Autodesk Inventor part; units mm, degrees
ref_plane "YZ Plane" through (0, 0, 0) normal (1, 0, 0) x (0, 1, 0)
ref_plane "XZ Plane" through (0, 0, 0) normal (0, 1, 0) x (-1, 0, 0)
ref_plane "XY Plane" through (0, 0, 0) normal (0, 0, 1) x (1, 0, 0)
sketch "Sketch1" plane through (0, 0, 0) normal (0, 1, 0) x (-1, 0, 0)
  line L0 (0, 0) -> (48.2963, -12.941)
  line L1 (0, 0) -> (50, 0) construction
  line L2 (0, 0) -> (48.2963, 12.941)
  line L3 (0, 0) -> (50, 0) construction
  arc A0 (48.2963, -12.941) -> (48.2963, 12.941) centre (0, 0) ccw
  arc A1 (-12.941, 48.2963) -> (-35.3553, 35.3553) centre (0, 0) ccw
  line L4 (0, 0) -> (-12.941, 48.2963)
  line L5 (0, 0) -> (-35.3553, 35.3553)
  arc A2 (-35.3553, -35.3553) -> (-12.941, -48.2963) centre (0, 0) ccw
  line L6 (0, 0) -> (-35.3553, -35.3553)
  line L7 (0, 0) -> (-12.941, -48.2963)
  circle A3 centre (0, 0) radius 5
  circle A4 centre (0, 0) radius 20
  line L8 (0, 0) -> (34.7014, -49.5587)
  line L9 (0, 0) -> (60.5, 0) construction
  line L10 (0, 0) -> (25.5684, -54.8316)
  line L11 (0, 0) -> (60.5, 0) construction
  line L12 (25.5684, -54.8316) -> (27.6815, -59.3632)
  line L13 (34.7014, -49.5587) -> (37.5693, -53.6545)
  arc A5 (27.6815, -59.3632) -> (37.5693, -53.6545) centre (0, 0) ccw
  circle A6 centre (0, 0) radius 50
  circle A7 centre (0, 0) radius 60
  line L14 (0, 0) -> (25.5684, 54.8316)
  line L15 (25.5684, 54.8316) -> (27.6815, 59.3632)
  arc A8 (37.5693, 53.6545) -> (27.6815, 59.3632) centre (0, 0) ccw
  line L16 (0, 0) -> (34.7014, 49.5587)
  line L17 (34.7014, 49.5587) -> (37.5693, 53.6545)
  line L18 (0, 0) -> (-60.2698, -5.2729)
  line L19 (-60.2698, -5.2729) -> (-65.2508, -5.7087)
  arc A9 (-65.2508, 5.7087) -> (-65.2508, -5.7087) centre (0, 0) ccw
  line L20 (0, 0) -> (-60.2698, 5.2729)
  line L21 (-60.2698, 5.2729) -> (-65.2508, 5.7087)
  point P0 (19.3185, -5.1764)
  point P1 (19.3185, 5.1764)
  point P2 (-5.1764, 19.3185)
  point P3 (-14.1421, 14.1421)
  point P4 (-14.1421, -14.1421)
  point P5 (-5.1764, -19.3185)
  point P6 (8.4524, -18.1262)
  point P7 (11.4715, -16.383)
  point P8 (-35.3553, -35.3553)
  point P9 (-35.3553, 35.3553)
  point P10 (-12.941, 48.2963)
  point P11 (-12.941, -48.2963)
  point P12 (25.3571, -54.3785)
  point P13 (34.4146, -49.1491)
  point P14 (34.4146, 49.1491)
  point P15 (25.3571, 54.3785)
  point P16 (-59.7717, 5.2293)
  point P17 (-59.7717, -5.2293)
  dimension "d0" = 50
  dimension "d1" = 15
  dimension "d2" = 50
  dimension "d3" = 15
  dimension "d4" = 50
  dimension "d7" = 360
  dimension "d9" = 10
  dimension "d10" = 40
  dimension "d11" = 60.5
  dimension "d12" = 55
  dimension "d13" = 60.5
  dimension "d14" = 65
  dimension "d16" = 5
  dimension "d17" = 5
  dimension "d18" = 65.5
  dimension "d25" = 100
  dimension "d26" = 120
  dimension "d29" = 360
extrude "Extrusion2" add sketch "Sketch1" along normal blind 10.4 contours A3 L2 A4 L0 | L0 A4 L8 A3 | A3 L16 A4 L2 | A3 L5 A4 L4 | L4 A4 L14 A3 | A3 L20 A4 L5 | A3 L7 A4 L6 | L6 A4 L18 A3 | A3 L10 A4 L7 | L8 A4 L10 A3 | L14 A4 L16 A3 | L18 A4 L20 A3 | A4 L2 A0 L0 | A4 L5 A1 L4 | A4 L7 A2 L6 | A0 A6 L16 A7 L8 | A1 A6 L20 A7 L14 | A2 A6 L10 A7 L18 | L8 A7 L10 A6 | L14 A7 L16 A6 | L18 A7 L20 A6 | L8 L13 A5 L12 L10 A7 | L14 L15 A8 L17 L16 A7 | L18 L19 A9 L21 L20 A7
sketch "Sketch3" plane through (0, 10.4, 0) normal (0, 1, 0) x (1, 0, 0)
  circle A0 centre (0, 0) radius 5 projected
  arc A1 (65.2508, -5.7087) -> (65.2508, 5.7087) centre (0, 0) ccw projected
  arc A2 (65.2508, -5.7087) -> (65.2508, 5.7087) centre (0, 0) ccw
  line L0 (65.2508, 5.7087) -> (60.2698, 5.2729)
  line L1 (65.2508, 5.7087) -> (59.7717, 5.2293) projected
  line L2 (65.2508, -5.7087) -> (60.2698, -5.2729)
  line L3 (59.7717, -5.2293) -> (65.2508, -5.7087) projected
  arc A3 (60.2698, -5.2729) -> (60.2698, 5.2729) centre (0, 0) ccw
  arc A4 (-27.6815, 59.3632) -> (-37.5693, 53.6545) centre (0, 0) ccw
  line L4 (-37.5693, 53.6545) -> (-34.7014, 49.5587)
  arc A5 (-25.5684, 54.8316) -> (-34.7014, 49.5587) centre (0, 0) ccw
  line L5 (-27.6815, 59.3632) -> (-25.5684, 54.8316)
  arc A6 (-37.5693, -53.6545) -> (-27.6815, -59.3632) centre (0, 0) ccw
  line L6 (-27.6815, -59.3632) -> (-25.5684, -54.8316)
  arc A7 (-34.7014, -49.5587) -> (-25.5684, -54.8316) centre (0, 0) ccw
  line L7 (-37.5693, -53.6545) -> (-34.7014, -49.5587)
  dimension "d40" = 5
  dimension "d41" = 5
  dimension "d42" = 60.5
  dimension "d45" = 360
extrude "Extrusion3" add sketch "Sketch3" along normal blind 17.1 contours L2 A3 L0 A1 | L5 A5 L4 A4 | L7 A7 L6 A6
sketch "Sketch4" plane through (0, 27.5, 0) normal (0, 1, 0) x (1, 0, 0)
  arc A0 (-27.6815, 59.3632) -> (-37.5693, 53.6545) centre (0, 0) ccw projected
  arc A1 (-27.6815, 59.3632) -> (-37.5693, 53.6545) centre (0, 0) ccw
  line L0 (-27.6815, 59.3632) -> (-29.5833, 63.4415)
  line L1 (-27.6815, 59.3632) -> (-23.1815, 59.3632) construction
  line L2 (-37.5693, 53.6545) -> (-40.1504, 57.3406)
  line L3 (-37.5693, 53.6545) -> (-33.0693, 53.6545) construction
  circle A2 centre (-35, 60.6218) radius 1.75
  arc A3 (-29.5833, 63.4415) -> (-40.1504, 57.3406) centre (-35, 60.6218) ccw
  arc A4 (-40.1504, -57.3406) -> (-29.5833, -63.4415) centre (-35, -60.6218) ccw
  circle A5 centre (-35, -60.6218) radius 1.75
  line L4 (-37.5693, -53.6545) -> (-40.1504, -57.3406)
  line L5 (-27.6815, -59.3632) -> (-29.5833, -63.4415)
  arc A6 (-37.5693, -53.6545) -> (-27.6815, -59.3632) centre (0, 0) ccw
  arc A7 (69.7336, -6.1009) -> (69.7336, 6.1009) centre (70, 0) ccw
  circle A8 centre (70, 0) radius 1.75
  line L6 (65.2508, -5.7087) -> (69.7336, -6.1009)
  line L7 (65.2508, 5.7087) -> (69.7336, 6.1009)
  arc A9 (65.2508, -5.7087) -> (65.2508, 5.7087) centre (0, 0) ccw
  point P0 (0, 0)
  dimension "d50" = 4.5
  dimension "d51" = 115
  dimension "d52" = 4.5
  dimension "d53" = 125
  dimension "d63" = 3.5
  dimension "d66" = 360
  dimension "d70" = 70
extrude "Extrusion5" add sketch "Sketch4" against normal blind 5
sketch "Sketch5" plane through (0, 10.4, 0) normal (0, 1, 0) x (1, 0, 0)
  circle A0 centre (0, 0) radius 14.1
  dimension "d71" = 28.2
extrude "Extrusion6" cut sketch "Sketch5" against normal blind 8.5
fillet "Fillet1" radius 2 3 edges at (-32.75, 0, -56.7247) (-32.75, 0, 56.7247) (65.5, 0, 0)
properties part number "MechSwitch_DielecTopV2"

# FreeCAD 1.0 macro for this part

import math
import FreeCAD as App
import Part
import Sketcher
Q = App.Units.Quantity


def edges_at(feature, points):
    """Names of the edges that pass closest to the given points."""
    edges = feature.Shape.Edges
    near = lambda p: min(range(len(edges)), key=lambda i: edges[i].distToShape(Part.Vertex(*p))[0])
    return sorted({f"Edge{near(p) + 1}" for p in points})

doc = App.newDocument("Part")
params = doc.addObject("Spreadsheet::Sheet", "Params")
for row, (alias, value) in enumerate([
    ("sketch1_diameter", "10 mm"),
    ("sketch1_radius", "60 mm"),
    ("sketch1_radius2", "20 mm"),
    ("sketch1_radius3", "50 mm"),
    ("sketch1_radius4", "65.5 mm"),
    ("pad1_length", "10.4 mm"),
    ("sketch2_radius", "60.5 mm"),
    ("sketch2_length", "5 mm"),
    ("pad2_length", "17.1 mm"),
    ("sketch3_diameter", "3.5 mm"),
    ("sketch3_length", "4.5 mm"),
    ("sketch3_radius", "65.5 mm"),
    ("pad3_length", "5 mm"),
    ("sketch4_diameter", "28.2 mm"),
    ("pocket1_length", "8.5 mm"),
    ("fillet_radius", "2 mm"),
], start=1):
    params.set(f"A{row}", alias)
    params.set(f"B{row}", "=" + value)
    params.setAlias(f"B{row}", alias)

body = doc.addObject("PartDesign::Body", "Body")

# Sketch on XZ plane
sketch1 = body.newObject("Sketcher::SketchObject", "Sketch")
sketch1.AttachmentSupport = (doc.getObject("XZ_Plane"), [""])
sketch1.MapMode = "FlatFace"
sketch1.addGeometry([
    Part.LineSegment(App.Vector(-34.414603, 49.149111, 0), App.Vector(-34.7014, 49.5587, 0)),  # 0
    Part.LineSegment(App.Vector(-34.7014, 49.5587, 0), App.Vector(-37.5693, 53.6545, 0)),  # 1
    Part.ArcOfCircle(Part.Circle(App.Vector(-0.001465, 0.0023, 0), App.Vector(0, 0, 1), 65.497334), math.radians(114.999677), math.radians(125.000115)),  # 2
    Part.LineSegment(App.Vector(-27.6815, 59.3632, 0), App.Vector(-25.5684, 54.8316, 0)),  # 3
    Part.LineSegment(App.Vector(-25.5684, 54.8316, 0), App.Vector(-25.3571, 54.378465, 0)),  # 4
    Part.ArcOfCircle(Part.Circle(App.Vector(0, 0, 0), App.Vector(0, 0, 1), 60), math.radians(4.999977), math.radians(115.000004)),  # 5
    Part.LineSegment(App.Vector(59.771684, 5.229321, 0), App.Vector(60.2698, 5.2729, 0)),  # 6
    Part.LineSegment(App.Vector(60.2698, 5.2729, 0), App.Vector(65.2508, 5.7087, 0)),  # 7
    Part.ArcOfCircle(Part.Circle(App.Vector(0, 0, 0), App.Vector(0, 0, 1), 65.500047), math.radians(-4.999995), math.radians(4.999995)),  # 8
    Part.LineSegment(App.Vector(65.2508, -5.7087, 0), App.Vector(60.2698, -5.2729, 0)),  # 9
    Part.LineSegment(App.Vector(60.2698, -5.2729, 0), App.Vector(59.771684, -5.229321, 0)),  # 10
    Part.ArcOfCircle(Part.Circle(App.Vector(0, 0, 0), App.Vector(0, 0, 1), 60), math.radians(-115.000004), math.radians(-4.999977)),  # 11
    Part.LineSegment(App.Vector(-25.3571, -54.378465, 0), App.Vector(-25.5684, -54.8316, 0)),  # 12
    Part.LineSegment(App.Vector(-25.5684, -54.8316, 0), App.Vector(-27.6815, -59.3632, 0)),  # 13
    Part.ArcOfCircle(Part.Circle(App.Vector(0.001259, 0.002419, 0), App.Vector(0, 0, 1), 65.502762), math.radians(-124.999699), math.radians(-115.000092)),  # 14
    Part.LineSegment(App.Vector(-37.5693, -53.6545, 0), App.Vector(-34.7014, -49.5587, 0)),  # 15
    Part.LineSegment(App.Vector(-34.7014, -49.5587, 0), App.Vector(-34.414603, -49.149111, 0)),  # 16
    Part.ArcOfCircle(Part.Circle(App.Vector(0, 0, 0), App.Vector(0, 0, 1), 60), math.radians(125.000019), math.radians(234.999981)),  # 17
    Part.Circle(App.Vector(0, 0, 0), App.Vector(0, 0, 1), 5),  # 18
    Part.ArcOfCircle(Part.Circle(App.Vector(0, 0, 0), App.Vector(0, 0, 1), 20), math.radians(74.99995), math.radians(164.99995)),  # 19
    Part.LineSegment(App.Vector(5.176398, 19.318512, 0), App.Vector(12.941, 48.2963, 0)),  # 20
    Part.ArcOfCircle(Part.Circle(App.Vector(0, 0, 0), App.Vector(0, 0, 1), 50), math.radians(74.99995), math.radians(164.99995)),  # 21
    Part.LineSegment(App.Vector(-48.2963, 12.941, 0), App.Vector(-19.318512, 5.176398, 0)),  # 22
    Part.LineSegment(App.Vector(-19.318512, -5.176398, 0), App.Vector(-48.2963, -12.941, 0)),  # 23
    Part.ArcOfCircle(Part.Circle(App.Vector(0, 0, 0), App.Vector(0, 0, 1), 50), math.radians(-164.99995), math.radians(-74.99995)),  # 24
    Part.LineSegment(App.Vector(12.941, -48.2963, 0), App.Vector(5.176398, -19.318512, 0)),  # 25
    Part.ArcOfCircle(Part.Circle(App.Vector(0, 0, 0), App.Vector(0, 0, 1), 20), math.radians(-164.99995), math.radians(-74.99995)),  # 26
    Part.ArcOfCircle(Part.Circle(App.Vector(0, 0, 0), App.Vector(0, 0, 1), 50), math.radians(-45), math.radians(45)),  # 27
    Part.LineSegment(App.Vector(35.3553, 35.3553, 0), App.Vector(14.142136, 14.142136, 0)),  # 28
    Part.ArcOfCircle(Part.Circle(App.Vector(0, 0, 0), App.Vector(0, 0, 1), 20), math.radians(-45), math.radians(45)),  # 29
    Part.LineSegment(App.Vector(14.142136, -14.142136, 0), App.Vector(35.3553, -35.3553, 0)),  # 30
], False)
sketch1.addConstraint([
    Sketcher.Constraint("Coincident", 0, 2, 1, 1),
    Sketcher.Constraint("Coincident", 1, 2, 2, 2),
    Sketcher.Constraint("Coincident", 2, 1, 3, 1),
    Sketcher.Constraint("Coincident", 3, 2, 4, 1),
    Sketcher.Constraint("Coincident", 4, 2, 5, 2),
    Sketcher.Constraint("Coincident", 5, 1, 6, 1),
    Sketcher.Constraint("Coincident", 6, 2, 7, 1),
    Sketcher.Constraint("Coincident", 7, 2, 8, 2),
    Sketcher.Constraint("Coincident", 8, 1, 9, 1),
    Sketcher.Constraint("Coincident", 9, 2, 10, 1),
    Sketcher.Constraint("Coincident", 10, 2, 11, 2),
    Sketcher.Constraint("Coincident", 11, 1, 12, 1),
    Sketcher.Constraint("Coincident", 12, 2, 13, 1),
    Sketcher.Constraint("Coincident", 13, 2, 14, 2),
    Sketcher.Constraint("Coincident", 14, 1, 15, 1),
    Sketcher.Constraint("Coincident", 15, 2, 16, 1),
    Sketcher.Constraint("Coincident", 16, 2, 17, 2),
    Sketcher.Constraint("Coincident", 17, 1, 0, 1),
    Sketcher.Constraint("Coincident", 19, 1, 20, 1),
    Sketcher.Constraint("Coincident", 20, 2, 21, 1),
    Sketcher.Constraint("Coincident", 21, 2, 22, 1),
    Sketcher.Constraint("Coincident", 22, 2, 19, 2),
    Sketcher.Constraint("Coincident", 23, 2, 24, 1),
    Sketcher.Constraint("Coincident", 24, 2, 25, 1),
    Sketcher.Constraint("Coincident", 25, 2, 26, 2),
    Sketcher.Constraint("Coincident", 26, 1, 23, 1),
    Sketcher.Constraint("Coincident", 27, 2, 28, 1),
    Sketcher.Constraint("Coincident", 28, 2, 29, 2),
    Sketcher.Constraint("Coincident", 29, 1, 30, 1),
    Sketcher.Constraint("Coincident", 30, 2, 27, 1),
    Sketcher.Constraint("Coincident", 5, 3, -1, 1),
    Sketcher.Constraint("Coincident", 8, 3, -1, 1),
    Sketcher.Constraint("Coincident", 11, 3, -1, 1),
    Sketcher.Constraint("Coincident", 17, 3, -1, 1),
    Sketcher.Constraint("Coincident", 18, 3, -1, 1),
    Sketcher.Constraint("Coincident", 19, 3, -1, 1),
    Sketcher.Constraint("Coincident", 21, 3, -1, 1),
    Sketcher.Constraint("Coincident", 24, 3, -1, 1),
    Sketcher.Constraint("Coincident", 26, 3, -1, 1),
    Sketcher.Constraint("Coincident", 27, 3, -1, 1),
    Sketcher.Constraint("Coincident", 29, 3, -1, 1),
    Sketcher.Constraint("Equal", 5, 11),
    Sketcher.Constraint("Equal", 11, 17),
    Sketcher.Constraint("Equal", 21, 24),
    Sketcher.Constraint("Equal", 19, 26),
    Sketcher.Constraint("Equal", 24, 27),
    Sketcher.Constraint("Equal", 26, 29),
    Sketcher.Constraint("Symmetric", 2, 3, 14, 3, -2),
    Sketcher.Constraint("Symmetric", 6, 2, 9, 2, -1),
    Sketcher.Constraint("Symmetric", 3, 2, 12, 2, -1),
    Sketcher.Constraint("Symmetric", 2, 1, 13, 2, -1),
    Sketcher.Constraint("Symmetric", 1, 2, 14, 1, -1),
    Sketcher.Constraint("Symmetric", 0, 2, 15, 2, -1),
    Sketcher.Constraint("Parallel", 0, 1),
    Sketcher.Constraint("Parallel", 3, 4),
    Sketcher.Constraint("Parallel", 6, 7),
    Sketcher.Constraint("Parallel", 9, 10),
    Sketcher.Constraint("Parallel", 12, 13),
    Sketcher.Constraint("Parallel", 15, 16),
    Sketcher.Constraint("Perpendicular", 20, 22),
    Sketcher.Constraint("Perpendicular", 23, 25),
    Sketcher.Constraint("Perpendicular", 28, 30),
    Sketcher.Constraint("Vertical", 7, 2, 8, 1),
    Sketcher.Constraint("Vertical", 21, 2, 23, 2),
    Sketcher.Constraint("Vertical", 20, 2, 24, 2),
    Sketcher.Constraint("Vertical", 19, 1, 25, 2),
    Sketcher.Constraint("Vertical", 28, 2, 29, 1),
    Sketcher.Constraint("Vertical", 27, 2, 30, 2),
    Sketcher.Constraint("Equal", 1, 3),
    Sketcher.Constraint("Equal", 4, 6),
    Sketcher.Constraint("Equal", 3, 7),
    Sketcher.Constraint("Diameter", 18, Q("10 mm")),
    Sketcher.Constraint("Radius", 5, Q("60 mm")),
    Sketcher.Constraint("Radius", 19, Q("20 mm")),
    Sketcher.Constraint("Radius", 21, Q("50 mm")),
    Sketcher.Constraint("Radius", 8, Q("65.5 mm")),
    Sketcher.Constraint("Angle", 3, Q("-65.0002 deg")),
    Sketcher.Constraint("Angle", 6, Q("5 deg")),
    Sketcher.Constraint("Angle", 15, Q("55 deg")),
    Sketcher.Constraint("Angle", 22, Q("-15 deg")),
    Sketcher.Constraint("Distance", 1, Q("5 mm")),
    Sketcher.Constraint("Radius", 2, Q("65.4973 mm")),
    Sketcher.Constraint("DistanceX", 0, 2, 2, 3, Q("34.7 mm")),
    Sketcher.Constraint("DistanceX", 0, 2, 2, 1, Q("7.02 mm")),
    Sketcher.Constraint("DistanceY", -1, 1, 6, 2, Q("5.273 mm")),
    Sketcher.Constraint("DistanceX", -1, 1, 20, 2, Q("12.941 mm")),
    Sketcher.Constraint("DistanceY", -1, 1, 21, 2, Q("12.941 mm")),
    Sketcher.Constraint("DistanceY", 27, 2, 20, 2, Q("12.941 mm")),
])
sketch1.setExpression("Constraints[71]", "Params.sketch1_diameter")
sketch1.setExpression("Constraints[72]", "Params.sketch1_radius")
sketch1.setExpression("Constraints[73]", "Params.sketch1_radius2")
sketch1.setExpression("Constraints[74]", "Params.sketch1_radius3")
sketch1.setExpression("Constraints[75]", "Params.sketch1_radius4")
pad1 = body.newObject("PartDesign::Pad", "Pad")
pad1.Profile = sketch1
pad1.setExpression("Length", "Params.pad1_length")
pad1.Reversed = True

# Sketch on XZ plane
sketch2 = body.newObject("Sketcher::SketchObject", "Sketch001")
sketch2.AttachmentSupport = (doc.getObject("XZ_Plane"), [""])
sketch2.MapMode = "FlatFace"
sketch2.AttachmentOffset = App.Placement(App.Vector(0, 0, -10.4), App.Rotation())
sketch2.addGeometry([
    Part.LineSegment(App.Vector(60.2698, 5.2729, 0), App.Vector(65.2508, 5.7087, 0)),  # 0
    Part.ArcOfCircle(Part.Circle(App.Vector(0, 0, 0), App.Vector(0, 0, 1), 65.500047), math.radians(-4.999995), math.radians(4.999995)),  # 1
    Part.LineSegment(App.Vector(65.2508, -5.7087, 0), App.Vector(60.2698, -5.2729, 0)),  # 2
    Part.ArcOfCircle(Part.Circle(App.Vector(0, 0, 0), App.Vector(0, 0, 1), 60.500019), math.radians(-4.999977), math.radians(4.999977)),  # 3
    Part.LineSegment(App.Vector(-25.5684, -54.8316, 0), App.Vector(-27.6815, -59.3632, 0)),  # 4
    Part.ArcOfCircle(Part.Circle(App.Vector(0.001259, 0.002419, 0), App.Vector(0, 0, 1), 65.502762), math.radians(-124.999699), math.radians(-115.000092)),  # 5
    Part.LineSegment(App.Vector(-37.5693, -53.6545, 0), App.Vector(-34.7014, -49.5587, 0)),  # 6
    Part.ArcOfCircle(Part.Circle(App.Vector(0.002244, 0.004311, 0), App.Vector(0, 0, 1), 60.504834), math.radians(-124.999418), math.radians(-115.000205)),  # 7
    Part.LineSegment(App.Vector(-34.7014, 49.5587, 0), App.Vector(-37.5693, 53.6545, 0)),  # 8
    Part.ArcOfCircle(Part.Circle(App.Vector(-0.001465, 0.0023, 0), App.Vector(0, 0, 1), 65.497334), math.radians(114.999677), math.radians(125.000115)),  # 9
    Part.LineSegment(App.Vector(-27.6815, 59.3632, 0), App.Vector(-25.5684, 54.8316, 0)),  # 10
    Part.ArcOfCircle(Part.Circle(App.Vector(-0.002611, 0.004098, 0), App.Vector(0, 0, 1), 60.495162), math.radians(114.999404), math.radians(125.00022)),  # 11
], False)
sketch2.addConstraint([
    Sketcher.Constraint("Coincident", 0, 2, 1, 2),
    Sketcher.Constraint("Coincident", 1, 1, 2, 1),
    Sketcher.Constraint("Coincident", 2, 2, 3, 1),
    Sketcher.Constraint("Coincident", 3, 2, 0, 1),
    Sketcher.Constraint("Coincident", 4, 2, 5, 2),
    Sketcher.Constraint("Coincident", 5, 1, 6, 1),
    Sketcher.Constraint("Coincident", 6, 2, 7, 1),
    Sketcher.Constraint("Coincident", 7, 2, 4, 1),
    Sketcher.Constraint("Coincident", 8, 2, 9, 2),
    Sketcher.Constraint("Coincident", 9, 1, 10, 1),
    Sketcher.Constraint("Coincident", 10, 2, 11, 1),
    Sketcher.Constraint("Coincident", 11, 2, 8, 1),
    Sketcher.Constraint("Coincident", 1, 3, -1, 1),
    Sketcher.Constraint("Coincident", 3, 3, -1, 1),
    Sketcher.Constraint("Symmetric", 5, 3, 9, 3, -2),
    Sketcher.Constraint("Symmetric", 5, 1, 8, 2, -1),
    Sketcher.Constraint("Symmetric", 4, 2, 9, 1, -1),
    Sketcher.Constraint("Symmetric", 7, 2, 10, 2, -1),
    Sketcher.Constraint("Symmetric", 6, 2, 11, 2, -1),
    Sketcher.Constraint("Vertical", 0, 2, 1, 1),
    Sketcher.Constraint("Vertical", 2, 2, 3, 2),
    Sketcher.Constraint("Equal", 2, 4),
    Sketcher.Constraint("Equal", 4, 6),
    Sketcher.Constraint("Radius", 3, Q("60.5 mm")),
    Sketcher.Constraint("Angle", 0, Q("5.0002 deg")),
    Sketcher.Constraint("Distance", 0, Q("5 mm")),
    Sketcher.Constraint("Angle", 4, Q("-114.9998 deg")),
    Sketcher.Constraint("Angle", 6, Q("55 deg")),
    Sketcher.Constraint("Radius", 5, Q("65.5028 mm")),
    Sketcher.Constraint("Radius", 7, Q("60.5048 mm")),
    Sketcher.Constraint("Radius", 9, Q("65.4973 mm")),
    Sketcher.Constraint("Radius", 11, Q("60.4952 mm")),
    Sketcher.Constraint("DistanceX", 6, 2, 9, 3, Q("34.7 mm")),
    Sketcher.Constraint("DistanceX", 4, 2, 9, 3, Q("27.68 mm")),
    Sketcher.Constraint("DistanceY", 2, 2, -1, 1, Q("5.273 mm")),
])
sketch2.setExpression("Constraints[23]", "Params.sketch2_radius")
sketch2.setExpression("Constraints[25]", "Params.sketch2_length")
pad2 = body.newObject("PartDesign::Pad", "Pad001")
pad2.Profile = sketch2
pad2.setExpression("Length", "Params.pad2_length")
pad2.Reversed = True

# Sketch on XZ plane
sketch3 = body.newObject("Sketcher::SketchObject", "Sketch002")
sketch3.AttachmentSupport = (doc.getObject("XZ_Plane"), [""])
sketch3.MapMode = "FlatFace"
sketch3.AttachmentOffset = App.Placement(App.Vector(0, 0, -27.5), App.Rotation())
sketch3.addGeometry([
    Part.ArcOfCircle(Part.Circle(App.Vector(0.001259, 0.002419, 0), App.Vector(0, 0, 1), 65.502762), math.radians(-124.999699), math.radians(-115.000092)),  # 0
    Part.LineSegment(App.Vector(-27.6815, -59.3632, 0), App.Vector(-29.5833, -63.4415, 0)),  # 1
    Part.ArcOfCircle(Part.Circle(App.Vector(-35, -60.6218, 0), App.Vector(0, 0, 1), 6.106664), math.radians(147.499736), math.radians(332.500462)),  # 2
    Part.LineSegment(App.Vector(-40.1504, -57.3406, 0), App.Vector(-37.5693, -53.6545, 0)),  # 3
    Part.Circle(App.Vector(-35, -60.6218, 0), App.Vector(0, 0, 1), 1.75),  # 4
    Part.LineSegment(App.Vector(-37.5693, 53.6545, 0), App.Vector(-40.1504, 57.3406, 0)),  # 5
    Part.ArcOfCircle(Part.Circle(App.Vector(-35, 60.6218, 0), App.Vector(0, 0, 1), 6.106791), math.radians(27.499538), math.radians(212.500264)),  # 6
    Part.LineSegment(App.Vector(-29.5833, 63.4415, 0), App.Vector(-27.6815, 59.3632, 0)),  # 7
    Part.ArcOfCircle(Part.Circle(App.Vector(-0.001465, 0.0023, 0), App.Vector(0, 0, 1), 65.497334), math.radians(114.999677), math.radians(125.000115)),  # 8
    Part.Circle(App.Vector(-35, 60.6218, 0), App.Vector(0, 0, 1), 1.75),  # 9
    Part.LineSegment(App.Vector(65.2508, 5.7087, 0), App.Vector(69.7336, 6.1009, 0)),  # 10
    Part.ArcOfCircle(Part.Circle(App.Vector(70, 0, 0), App.Vector(0, 0, 1), 6.106713), math.radians(-92.500271), math.radians(92.500271)),  # 11
    Part.LineSegment(App.Vector(69.7336, -6.1009, 0), App.Vector(65.2508, -5.7087, 0)),  # 12
    Part.ArcOfCircle(Part.Circle(App.Vector(0, 0, 0), App.Vector(0, 0, 1), 65.500047), math.radians(-4.999995), math.radians(4.999995)),  # 13
    Part.Circle(App.Vector(70, 0, 0), App.Vector(0, 0, 1), 1.75),  # 14
], False)
sketch3.addConstraint([
    Sketcher.Constraint("Coincident", 0, 2, 1, 1),
    Sketcher.Constraint("Coincident", 1, 2, 2, 2),
    Sketcher.Constraint("Coincident", 2, 1, 3, 1),
    Sketcher.Constraint("Coincident", 3, 2, 0, 1),
    Sketcher.Constraint("Coincident", 5, 2, 6, 2),
    Sketcher.Constraint("Coincident", 6, 1, 7, 1),
    Sketcher.Constraint("Coincident", 7, 2, 8, 1),
    Sketcher.Constraint("Coincident", 8, 2, 5, 1),
    Sketcher.Constraint("Coincident", 10, 2, 11, 2),
    Sketcher.Constraint("Coincident", 11, 1, 12, 1),
    Sketcher.Constraint("Coincident", 12, 2, 13, 1),
    Sketcher.Constraint("Coincident", 13, 2, 10, 1),
    Sketcher.Constraint("Coincident", 13, 3, -1, 1),
    Sketcher.Constraint("Coincident", 4, 3, 2, 3),
    Sketcher.Constraint("Coincident", 9, 3, 6, 3),
    Sketcher.Constraint("Coincident", 14, 3, 11, 3),
    Sketcher.Constraint("Equal", 2, 6),
    Sketcher.Constraint("Equal", 4, 9),
    Sketcher.Constraint("Equal", 6, 11),
    Sketcher.Constraint("Equal", 9, 14),
    Sketcher.Constraint("Symmetric", 0, 3, 8, 3, -2),
    Sketcher.Constraint("Symmetric", 2, 3, 6, 3, -1),
    Sketcher.Constraint("Symmetric", 0, 2, 7, 2, -1),
    Sketcher.Constraint("Symmetric", 3, 2, 8, 2, -1),
    Sketcher.Constraint("Symmetric", 10, 2, 11, 1, -1),
    Sketcher.Constraint("Vertical", 2, 1, 5, 2),
    Sketcher.Constraint("Vertical", 1, 2, 6, 1),
    Sketcher.Constraint("Vertical", 12, 2, 13, 2),
    Sketcher.Constraint("Equal", 1, 3),
    Sketcher.Constraint("Equal", 7, 10),
    Sketcher.Constraint("Diameter", 4, Q("3.5 mm")),
    Sketcher.Constraint("DistanceX", -1, 1, 11, 3, Q("70 mm")),
    Sketcher.Constraint("Distance", 1, Q("4.5 mm")),
    Sketcher.Constraint("Radius", 13, Q("65.5 mm")),
    Sketcher.Constraint("Angle", 1, Q("-115.0007 deg")),
    Sketcher.Constraint("Angle", 3, Q("54.9993 deg")),
    Sketcher.Constraint("Angle", 10, Q("5 deg")),
    Sketcher.Constraint("DistanceX", 2, 3, -1, 1, Q("35 mm")),
    Sketcher.Constraint("Radius", 0, Q("65.5028 mm")),
    Sketcher.Constraint("Radius", 2, Q("6.1067 mm")),
    Sketcher.Constraint("Radius", 8, Q("65.4973 mm")),
    Sketcher.Constraint("DistanceX", 0, 2, 8, 3, Q("27.68 mm")),
])
sketch3.setExpression("Constraints[30]", "Params.sketch3_diameter")
sketch3.setExpression("Constraints[32]", "Params.sketch3_length")
sketch3.setExpression("Constraints[33]", "Params.sketch3_radius")
pad3 = body.newObject("PartDesign::Pad", "Pad002")
pad3.Profile = sketch3
pad3.setExpression("Length", "Params.pad3_length")

# Sketch on XZ plane
sketch4 = body.newObject("Sketcher::SketchObject", "Sketch003")
sketch4.AttachmentSupport = (doc.getObject("XZ_Plane"), [""])
sketch4.MapMode = "FlatFace"
sketch4.AttachmentOffset = App.Placement(App.Vector(0, 0, -10.4), App.Rotation())
sketch4.addGeometry(Part.Circle(App.Vector(0, 0, 0), App.Vector(0, 0, 1), 14), False)
sketch4.addConstraint([
    Sketcher.Constraint("Coincident", 0, 3, -1, 1),
    Sketcher.Constraint("Diameter", 0, Q("28.2 mm")),
])
sketch4.setExpression("Constraints[1]", "Params.sketch4_diameter")
pocket1 = body.newObject("PartDesign::Pocket", "Pocket")
pocket1.Profile = sketch4
pocket1.setExpression("Length", "Params.pocket1_length")
pocket1.Reversed = True
doc.recompute()

fillet = body.newObject("PartDesign::Fillet", "Fillet")
fillet.Base = (pocket1, edges_at(pocket1, [(-32.75, 0, -56.725), (-32.75, 0, 56.725), (65.5, 0, 0)]))
fillet.setExpression("Radius", "Params.fillet_radius")

doc.recompute()
